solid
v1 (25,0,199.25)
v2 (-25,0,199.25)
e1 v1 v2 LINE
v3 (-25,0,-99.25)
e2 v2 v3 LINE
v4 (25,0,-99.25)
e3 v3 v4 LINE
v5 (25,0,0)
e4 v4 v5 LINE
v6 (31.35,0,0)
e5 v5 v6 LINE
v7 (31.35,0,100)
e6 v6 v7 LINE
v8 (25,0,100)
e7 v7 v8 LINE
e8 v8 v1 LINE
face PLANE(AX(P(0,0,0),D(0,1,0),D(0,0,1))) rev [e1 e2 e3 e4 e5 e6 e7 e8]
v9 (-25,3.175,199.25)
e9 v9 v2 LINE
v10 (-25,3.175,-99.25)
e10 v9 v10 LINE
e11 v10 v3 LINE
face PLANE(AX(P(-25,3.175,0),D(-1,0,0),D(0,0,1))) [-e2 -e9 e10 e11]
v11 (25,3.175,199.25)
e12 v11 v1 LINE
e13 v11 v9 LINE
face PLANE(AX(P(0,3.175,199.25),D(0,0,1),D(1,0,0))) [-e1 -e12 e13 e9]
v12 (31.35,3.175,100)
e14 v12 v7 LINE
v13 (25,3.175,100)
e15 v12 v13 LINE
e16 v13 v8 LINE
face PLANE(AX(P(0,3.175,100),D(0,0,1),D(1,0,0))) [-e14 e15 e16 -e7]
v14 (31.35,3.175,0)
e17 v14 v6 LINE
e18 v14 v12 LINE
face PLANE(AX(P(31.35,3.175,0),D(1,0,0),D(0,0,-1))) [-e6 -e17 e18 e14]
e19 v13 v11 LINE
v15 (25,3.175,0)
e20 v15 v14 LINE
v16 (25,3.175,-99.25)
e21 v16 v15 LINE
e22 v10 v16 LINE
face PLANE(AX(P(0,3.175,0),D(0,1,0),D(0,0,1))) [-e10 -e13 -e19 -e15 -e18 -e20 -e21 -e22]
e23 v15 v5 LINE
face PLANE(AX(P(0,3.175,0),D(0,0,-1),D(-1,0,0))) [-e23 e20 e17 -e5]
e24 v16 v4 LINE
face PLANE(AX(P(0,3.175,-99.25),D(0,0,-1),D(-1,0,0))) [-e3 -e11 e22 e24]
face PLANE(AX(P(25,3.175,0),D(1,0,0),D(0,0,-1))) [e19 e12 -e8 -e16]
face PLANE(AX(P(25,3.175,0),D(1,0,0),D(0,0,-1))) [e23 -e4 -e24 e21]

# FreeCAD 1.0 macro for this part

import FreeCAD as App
import Part
import Sketcher

V = App.Vector
Q = App.Units.Quantity


def add_polygon(sketch, points):
    """Adds a closed chain of lines whose ends are joined by coincident constraints."""
    first, n = sketch.GeometryCount, len(points)
    for a, b in zip(points, points[1:] + points[:1]):
        sketch.addGeometry(Part.LineSegment(App.Vector(*a, 0), App.Vector(*b, 0)), False)
    for i in range(n):
        sketch.addConstraint(Sketcher.Constraint("Coincident", first + i, 2, first + (i + 1) % n, 1))

doc = App.newDocument("Part")
body = doc.addObject("PartDesign::Body", "Body")

sketch1 = body.newObject("Sketcher::SketchObject", "Sketch")
sketch1.AttachmentSupport = (doc.getObject("XZ_Plane"), [""])
sketch1.MapMode = "FlatFace"
add_polygon(sketch1, [(-25, -99), (-25, 199), (25, 199), (25, 100), (31, 100), (31, 0), (25, 0), (25, -99)])
sketch1.addConstraint(Sketcher.Constraint("Vertical", 0))
sketch1.addConstraint(Sketcher.Constraint("Horizontal", 1))
sketch1.addConstraint(Sketcher.Constraint("Vertical", 2))
sketch1.addConstraint(Sketcher.Constraint("Horizontal", 3))
sketch1.addConstraint(Sketcher.Constraint("Vertical", 4))
sketch1.addConstraint(Sketcher.Constraint("Horizontal", 5))
sketch1.addConstraint(Sketcher.Constraint("Vertical", 6))
sketch1.addConstraint(Sketcher.Constraint("Horizontal", 7))
sketch1.addConstraint(Sketcher.Constraint("PointOnObject", 4, 2, -1))
sketch1.addConstraint(Sketcher.Constraint("Vertical", 2, 2, 5, 2))
sketch1.addConstraint(Sketcher.Constraint("Equal", 2, 6))
sketch1.addConstraint(Sketcher.Constraint("DistanceX", 1, 1, 1, 2, Q("50 mm")))
sketch1.addConstraint(Sketcher.Constraint("DistanceY", 4, 2, 4, 1, Q("100 mm")))
sketch1.addConstraint(Sketcher.Constraint("DistanceY", 0, 1, 0, 2, Q("298.5 mm")))
sketch1.addConstraint(Sketcher.Constraint("DistanceX", 0, 2, -1, 1, Q("25 mm")))
sketch1.addConstraint(Sketcher.Constraint("DistanceX", 3, 1, 3, 2, Q("6.35 mm")))
pad1 = body.newObject("PartDesign::Pad", "Pad")
pad1.Profile = sketch1
pad1.Length = 3.175
pad1.Reversed = True

doc.recompute()
